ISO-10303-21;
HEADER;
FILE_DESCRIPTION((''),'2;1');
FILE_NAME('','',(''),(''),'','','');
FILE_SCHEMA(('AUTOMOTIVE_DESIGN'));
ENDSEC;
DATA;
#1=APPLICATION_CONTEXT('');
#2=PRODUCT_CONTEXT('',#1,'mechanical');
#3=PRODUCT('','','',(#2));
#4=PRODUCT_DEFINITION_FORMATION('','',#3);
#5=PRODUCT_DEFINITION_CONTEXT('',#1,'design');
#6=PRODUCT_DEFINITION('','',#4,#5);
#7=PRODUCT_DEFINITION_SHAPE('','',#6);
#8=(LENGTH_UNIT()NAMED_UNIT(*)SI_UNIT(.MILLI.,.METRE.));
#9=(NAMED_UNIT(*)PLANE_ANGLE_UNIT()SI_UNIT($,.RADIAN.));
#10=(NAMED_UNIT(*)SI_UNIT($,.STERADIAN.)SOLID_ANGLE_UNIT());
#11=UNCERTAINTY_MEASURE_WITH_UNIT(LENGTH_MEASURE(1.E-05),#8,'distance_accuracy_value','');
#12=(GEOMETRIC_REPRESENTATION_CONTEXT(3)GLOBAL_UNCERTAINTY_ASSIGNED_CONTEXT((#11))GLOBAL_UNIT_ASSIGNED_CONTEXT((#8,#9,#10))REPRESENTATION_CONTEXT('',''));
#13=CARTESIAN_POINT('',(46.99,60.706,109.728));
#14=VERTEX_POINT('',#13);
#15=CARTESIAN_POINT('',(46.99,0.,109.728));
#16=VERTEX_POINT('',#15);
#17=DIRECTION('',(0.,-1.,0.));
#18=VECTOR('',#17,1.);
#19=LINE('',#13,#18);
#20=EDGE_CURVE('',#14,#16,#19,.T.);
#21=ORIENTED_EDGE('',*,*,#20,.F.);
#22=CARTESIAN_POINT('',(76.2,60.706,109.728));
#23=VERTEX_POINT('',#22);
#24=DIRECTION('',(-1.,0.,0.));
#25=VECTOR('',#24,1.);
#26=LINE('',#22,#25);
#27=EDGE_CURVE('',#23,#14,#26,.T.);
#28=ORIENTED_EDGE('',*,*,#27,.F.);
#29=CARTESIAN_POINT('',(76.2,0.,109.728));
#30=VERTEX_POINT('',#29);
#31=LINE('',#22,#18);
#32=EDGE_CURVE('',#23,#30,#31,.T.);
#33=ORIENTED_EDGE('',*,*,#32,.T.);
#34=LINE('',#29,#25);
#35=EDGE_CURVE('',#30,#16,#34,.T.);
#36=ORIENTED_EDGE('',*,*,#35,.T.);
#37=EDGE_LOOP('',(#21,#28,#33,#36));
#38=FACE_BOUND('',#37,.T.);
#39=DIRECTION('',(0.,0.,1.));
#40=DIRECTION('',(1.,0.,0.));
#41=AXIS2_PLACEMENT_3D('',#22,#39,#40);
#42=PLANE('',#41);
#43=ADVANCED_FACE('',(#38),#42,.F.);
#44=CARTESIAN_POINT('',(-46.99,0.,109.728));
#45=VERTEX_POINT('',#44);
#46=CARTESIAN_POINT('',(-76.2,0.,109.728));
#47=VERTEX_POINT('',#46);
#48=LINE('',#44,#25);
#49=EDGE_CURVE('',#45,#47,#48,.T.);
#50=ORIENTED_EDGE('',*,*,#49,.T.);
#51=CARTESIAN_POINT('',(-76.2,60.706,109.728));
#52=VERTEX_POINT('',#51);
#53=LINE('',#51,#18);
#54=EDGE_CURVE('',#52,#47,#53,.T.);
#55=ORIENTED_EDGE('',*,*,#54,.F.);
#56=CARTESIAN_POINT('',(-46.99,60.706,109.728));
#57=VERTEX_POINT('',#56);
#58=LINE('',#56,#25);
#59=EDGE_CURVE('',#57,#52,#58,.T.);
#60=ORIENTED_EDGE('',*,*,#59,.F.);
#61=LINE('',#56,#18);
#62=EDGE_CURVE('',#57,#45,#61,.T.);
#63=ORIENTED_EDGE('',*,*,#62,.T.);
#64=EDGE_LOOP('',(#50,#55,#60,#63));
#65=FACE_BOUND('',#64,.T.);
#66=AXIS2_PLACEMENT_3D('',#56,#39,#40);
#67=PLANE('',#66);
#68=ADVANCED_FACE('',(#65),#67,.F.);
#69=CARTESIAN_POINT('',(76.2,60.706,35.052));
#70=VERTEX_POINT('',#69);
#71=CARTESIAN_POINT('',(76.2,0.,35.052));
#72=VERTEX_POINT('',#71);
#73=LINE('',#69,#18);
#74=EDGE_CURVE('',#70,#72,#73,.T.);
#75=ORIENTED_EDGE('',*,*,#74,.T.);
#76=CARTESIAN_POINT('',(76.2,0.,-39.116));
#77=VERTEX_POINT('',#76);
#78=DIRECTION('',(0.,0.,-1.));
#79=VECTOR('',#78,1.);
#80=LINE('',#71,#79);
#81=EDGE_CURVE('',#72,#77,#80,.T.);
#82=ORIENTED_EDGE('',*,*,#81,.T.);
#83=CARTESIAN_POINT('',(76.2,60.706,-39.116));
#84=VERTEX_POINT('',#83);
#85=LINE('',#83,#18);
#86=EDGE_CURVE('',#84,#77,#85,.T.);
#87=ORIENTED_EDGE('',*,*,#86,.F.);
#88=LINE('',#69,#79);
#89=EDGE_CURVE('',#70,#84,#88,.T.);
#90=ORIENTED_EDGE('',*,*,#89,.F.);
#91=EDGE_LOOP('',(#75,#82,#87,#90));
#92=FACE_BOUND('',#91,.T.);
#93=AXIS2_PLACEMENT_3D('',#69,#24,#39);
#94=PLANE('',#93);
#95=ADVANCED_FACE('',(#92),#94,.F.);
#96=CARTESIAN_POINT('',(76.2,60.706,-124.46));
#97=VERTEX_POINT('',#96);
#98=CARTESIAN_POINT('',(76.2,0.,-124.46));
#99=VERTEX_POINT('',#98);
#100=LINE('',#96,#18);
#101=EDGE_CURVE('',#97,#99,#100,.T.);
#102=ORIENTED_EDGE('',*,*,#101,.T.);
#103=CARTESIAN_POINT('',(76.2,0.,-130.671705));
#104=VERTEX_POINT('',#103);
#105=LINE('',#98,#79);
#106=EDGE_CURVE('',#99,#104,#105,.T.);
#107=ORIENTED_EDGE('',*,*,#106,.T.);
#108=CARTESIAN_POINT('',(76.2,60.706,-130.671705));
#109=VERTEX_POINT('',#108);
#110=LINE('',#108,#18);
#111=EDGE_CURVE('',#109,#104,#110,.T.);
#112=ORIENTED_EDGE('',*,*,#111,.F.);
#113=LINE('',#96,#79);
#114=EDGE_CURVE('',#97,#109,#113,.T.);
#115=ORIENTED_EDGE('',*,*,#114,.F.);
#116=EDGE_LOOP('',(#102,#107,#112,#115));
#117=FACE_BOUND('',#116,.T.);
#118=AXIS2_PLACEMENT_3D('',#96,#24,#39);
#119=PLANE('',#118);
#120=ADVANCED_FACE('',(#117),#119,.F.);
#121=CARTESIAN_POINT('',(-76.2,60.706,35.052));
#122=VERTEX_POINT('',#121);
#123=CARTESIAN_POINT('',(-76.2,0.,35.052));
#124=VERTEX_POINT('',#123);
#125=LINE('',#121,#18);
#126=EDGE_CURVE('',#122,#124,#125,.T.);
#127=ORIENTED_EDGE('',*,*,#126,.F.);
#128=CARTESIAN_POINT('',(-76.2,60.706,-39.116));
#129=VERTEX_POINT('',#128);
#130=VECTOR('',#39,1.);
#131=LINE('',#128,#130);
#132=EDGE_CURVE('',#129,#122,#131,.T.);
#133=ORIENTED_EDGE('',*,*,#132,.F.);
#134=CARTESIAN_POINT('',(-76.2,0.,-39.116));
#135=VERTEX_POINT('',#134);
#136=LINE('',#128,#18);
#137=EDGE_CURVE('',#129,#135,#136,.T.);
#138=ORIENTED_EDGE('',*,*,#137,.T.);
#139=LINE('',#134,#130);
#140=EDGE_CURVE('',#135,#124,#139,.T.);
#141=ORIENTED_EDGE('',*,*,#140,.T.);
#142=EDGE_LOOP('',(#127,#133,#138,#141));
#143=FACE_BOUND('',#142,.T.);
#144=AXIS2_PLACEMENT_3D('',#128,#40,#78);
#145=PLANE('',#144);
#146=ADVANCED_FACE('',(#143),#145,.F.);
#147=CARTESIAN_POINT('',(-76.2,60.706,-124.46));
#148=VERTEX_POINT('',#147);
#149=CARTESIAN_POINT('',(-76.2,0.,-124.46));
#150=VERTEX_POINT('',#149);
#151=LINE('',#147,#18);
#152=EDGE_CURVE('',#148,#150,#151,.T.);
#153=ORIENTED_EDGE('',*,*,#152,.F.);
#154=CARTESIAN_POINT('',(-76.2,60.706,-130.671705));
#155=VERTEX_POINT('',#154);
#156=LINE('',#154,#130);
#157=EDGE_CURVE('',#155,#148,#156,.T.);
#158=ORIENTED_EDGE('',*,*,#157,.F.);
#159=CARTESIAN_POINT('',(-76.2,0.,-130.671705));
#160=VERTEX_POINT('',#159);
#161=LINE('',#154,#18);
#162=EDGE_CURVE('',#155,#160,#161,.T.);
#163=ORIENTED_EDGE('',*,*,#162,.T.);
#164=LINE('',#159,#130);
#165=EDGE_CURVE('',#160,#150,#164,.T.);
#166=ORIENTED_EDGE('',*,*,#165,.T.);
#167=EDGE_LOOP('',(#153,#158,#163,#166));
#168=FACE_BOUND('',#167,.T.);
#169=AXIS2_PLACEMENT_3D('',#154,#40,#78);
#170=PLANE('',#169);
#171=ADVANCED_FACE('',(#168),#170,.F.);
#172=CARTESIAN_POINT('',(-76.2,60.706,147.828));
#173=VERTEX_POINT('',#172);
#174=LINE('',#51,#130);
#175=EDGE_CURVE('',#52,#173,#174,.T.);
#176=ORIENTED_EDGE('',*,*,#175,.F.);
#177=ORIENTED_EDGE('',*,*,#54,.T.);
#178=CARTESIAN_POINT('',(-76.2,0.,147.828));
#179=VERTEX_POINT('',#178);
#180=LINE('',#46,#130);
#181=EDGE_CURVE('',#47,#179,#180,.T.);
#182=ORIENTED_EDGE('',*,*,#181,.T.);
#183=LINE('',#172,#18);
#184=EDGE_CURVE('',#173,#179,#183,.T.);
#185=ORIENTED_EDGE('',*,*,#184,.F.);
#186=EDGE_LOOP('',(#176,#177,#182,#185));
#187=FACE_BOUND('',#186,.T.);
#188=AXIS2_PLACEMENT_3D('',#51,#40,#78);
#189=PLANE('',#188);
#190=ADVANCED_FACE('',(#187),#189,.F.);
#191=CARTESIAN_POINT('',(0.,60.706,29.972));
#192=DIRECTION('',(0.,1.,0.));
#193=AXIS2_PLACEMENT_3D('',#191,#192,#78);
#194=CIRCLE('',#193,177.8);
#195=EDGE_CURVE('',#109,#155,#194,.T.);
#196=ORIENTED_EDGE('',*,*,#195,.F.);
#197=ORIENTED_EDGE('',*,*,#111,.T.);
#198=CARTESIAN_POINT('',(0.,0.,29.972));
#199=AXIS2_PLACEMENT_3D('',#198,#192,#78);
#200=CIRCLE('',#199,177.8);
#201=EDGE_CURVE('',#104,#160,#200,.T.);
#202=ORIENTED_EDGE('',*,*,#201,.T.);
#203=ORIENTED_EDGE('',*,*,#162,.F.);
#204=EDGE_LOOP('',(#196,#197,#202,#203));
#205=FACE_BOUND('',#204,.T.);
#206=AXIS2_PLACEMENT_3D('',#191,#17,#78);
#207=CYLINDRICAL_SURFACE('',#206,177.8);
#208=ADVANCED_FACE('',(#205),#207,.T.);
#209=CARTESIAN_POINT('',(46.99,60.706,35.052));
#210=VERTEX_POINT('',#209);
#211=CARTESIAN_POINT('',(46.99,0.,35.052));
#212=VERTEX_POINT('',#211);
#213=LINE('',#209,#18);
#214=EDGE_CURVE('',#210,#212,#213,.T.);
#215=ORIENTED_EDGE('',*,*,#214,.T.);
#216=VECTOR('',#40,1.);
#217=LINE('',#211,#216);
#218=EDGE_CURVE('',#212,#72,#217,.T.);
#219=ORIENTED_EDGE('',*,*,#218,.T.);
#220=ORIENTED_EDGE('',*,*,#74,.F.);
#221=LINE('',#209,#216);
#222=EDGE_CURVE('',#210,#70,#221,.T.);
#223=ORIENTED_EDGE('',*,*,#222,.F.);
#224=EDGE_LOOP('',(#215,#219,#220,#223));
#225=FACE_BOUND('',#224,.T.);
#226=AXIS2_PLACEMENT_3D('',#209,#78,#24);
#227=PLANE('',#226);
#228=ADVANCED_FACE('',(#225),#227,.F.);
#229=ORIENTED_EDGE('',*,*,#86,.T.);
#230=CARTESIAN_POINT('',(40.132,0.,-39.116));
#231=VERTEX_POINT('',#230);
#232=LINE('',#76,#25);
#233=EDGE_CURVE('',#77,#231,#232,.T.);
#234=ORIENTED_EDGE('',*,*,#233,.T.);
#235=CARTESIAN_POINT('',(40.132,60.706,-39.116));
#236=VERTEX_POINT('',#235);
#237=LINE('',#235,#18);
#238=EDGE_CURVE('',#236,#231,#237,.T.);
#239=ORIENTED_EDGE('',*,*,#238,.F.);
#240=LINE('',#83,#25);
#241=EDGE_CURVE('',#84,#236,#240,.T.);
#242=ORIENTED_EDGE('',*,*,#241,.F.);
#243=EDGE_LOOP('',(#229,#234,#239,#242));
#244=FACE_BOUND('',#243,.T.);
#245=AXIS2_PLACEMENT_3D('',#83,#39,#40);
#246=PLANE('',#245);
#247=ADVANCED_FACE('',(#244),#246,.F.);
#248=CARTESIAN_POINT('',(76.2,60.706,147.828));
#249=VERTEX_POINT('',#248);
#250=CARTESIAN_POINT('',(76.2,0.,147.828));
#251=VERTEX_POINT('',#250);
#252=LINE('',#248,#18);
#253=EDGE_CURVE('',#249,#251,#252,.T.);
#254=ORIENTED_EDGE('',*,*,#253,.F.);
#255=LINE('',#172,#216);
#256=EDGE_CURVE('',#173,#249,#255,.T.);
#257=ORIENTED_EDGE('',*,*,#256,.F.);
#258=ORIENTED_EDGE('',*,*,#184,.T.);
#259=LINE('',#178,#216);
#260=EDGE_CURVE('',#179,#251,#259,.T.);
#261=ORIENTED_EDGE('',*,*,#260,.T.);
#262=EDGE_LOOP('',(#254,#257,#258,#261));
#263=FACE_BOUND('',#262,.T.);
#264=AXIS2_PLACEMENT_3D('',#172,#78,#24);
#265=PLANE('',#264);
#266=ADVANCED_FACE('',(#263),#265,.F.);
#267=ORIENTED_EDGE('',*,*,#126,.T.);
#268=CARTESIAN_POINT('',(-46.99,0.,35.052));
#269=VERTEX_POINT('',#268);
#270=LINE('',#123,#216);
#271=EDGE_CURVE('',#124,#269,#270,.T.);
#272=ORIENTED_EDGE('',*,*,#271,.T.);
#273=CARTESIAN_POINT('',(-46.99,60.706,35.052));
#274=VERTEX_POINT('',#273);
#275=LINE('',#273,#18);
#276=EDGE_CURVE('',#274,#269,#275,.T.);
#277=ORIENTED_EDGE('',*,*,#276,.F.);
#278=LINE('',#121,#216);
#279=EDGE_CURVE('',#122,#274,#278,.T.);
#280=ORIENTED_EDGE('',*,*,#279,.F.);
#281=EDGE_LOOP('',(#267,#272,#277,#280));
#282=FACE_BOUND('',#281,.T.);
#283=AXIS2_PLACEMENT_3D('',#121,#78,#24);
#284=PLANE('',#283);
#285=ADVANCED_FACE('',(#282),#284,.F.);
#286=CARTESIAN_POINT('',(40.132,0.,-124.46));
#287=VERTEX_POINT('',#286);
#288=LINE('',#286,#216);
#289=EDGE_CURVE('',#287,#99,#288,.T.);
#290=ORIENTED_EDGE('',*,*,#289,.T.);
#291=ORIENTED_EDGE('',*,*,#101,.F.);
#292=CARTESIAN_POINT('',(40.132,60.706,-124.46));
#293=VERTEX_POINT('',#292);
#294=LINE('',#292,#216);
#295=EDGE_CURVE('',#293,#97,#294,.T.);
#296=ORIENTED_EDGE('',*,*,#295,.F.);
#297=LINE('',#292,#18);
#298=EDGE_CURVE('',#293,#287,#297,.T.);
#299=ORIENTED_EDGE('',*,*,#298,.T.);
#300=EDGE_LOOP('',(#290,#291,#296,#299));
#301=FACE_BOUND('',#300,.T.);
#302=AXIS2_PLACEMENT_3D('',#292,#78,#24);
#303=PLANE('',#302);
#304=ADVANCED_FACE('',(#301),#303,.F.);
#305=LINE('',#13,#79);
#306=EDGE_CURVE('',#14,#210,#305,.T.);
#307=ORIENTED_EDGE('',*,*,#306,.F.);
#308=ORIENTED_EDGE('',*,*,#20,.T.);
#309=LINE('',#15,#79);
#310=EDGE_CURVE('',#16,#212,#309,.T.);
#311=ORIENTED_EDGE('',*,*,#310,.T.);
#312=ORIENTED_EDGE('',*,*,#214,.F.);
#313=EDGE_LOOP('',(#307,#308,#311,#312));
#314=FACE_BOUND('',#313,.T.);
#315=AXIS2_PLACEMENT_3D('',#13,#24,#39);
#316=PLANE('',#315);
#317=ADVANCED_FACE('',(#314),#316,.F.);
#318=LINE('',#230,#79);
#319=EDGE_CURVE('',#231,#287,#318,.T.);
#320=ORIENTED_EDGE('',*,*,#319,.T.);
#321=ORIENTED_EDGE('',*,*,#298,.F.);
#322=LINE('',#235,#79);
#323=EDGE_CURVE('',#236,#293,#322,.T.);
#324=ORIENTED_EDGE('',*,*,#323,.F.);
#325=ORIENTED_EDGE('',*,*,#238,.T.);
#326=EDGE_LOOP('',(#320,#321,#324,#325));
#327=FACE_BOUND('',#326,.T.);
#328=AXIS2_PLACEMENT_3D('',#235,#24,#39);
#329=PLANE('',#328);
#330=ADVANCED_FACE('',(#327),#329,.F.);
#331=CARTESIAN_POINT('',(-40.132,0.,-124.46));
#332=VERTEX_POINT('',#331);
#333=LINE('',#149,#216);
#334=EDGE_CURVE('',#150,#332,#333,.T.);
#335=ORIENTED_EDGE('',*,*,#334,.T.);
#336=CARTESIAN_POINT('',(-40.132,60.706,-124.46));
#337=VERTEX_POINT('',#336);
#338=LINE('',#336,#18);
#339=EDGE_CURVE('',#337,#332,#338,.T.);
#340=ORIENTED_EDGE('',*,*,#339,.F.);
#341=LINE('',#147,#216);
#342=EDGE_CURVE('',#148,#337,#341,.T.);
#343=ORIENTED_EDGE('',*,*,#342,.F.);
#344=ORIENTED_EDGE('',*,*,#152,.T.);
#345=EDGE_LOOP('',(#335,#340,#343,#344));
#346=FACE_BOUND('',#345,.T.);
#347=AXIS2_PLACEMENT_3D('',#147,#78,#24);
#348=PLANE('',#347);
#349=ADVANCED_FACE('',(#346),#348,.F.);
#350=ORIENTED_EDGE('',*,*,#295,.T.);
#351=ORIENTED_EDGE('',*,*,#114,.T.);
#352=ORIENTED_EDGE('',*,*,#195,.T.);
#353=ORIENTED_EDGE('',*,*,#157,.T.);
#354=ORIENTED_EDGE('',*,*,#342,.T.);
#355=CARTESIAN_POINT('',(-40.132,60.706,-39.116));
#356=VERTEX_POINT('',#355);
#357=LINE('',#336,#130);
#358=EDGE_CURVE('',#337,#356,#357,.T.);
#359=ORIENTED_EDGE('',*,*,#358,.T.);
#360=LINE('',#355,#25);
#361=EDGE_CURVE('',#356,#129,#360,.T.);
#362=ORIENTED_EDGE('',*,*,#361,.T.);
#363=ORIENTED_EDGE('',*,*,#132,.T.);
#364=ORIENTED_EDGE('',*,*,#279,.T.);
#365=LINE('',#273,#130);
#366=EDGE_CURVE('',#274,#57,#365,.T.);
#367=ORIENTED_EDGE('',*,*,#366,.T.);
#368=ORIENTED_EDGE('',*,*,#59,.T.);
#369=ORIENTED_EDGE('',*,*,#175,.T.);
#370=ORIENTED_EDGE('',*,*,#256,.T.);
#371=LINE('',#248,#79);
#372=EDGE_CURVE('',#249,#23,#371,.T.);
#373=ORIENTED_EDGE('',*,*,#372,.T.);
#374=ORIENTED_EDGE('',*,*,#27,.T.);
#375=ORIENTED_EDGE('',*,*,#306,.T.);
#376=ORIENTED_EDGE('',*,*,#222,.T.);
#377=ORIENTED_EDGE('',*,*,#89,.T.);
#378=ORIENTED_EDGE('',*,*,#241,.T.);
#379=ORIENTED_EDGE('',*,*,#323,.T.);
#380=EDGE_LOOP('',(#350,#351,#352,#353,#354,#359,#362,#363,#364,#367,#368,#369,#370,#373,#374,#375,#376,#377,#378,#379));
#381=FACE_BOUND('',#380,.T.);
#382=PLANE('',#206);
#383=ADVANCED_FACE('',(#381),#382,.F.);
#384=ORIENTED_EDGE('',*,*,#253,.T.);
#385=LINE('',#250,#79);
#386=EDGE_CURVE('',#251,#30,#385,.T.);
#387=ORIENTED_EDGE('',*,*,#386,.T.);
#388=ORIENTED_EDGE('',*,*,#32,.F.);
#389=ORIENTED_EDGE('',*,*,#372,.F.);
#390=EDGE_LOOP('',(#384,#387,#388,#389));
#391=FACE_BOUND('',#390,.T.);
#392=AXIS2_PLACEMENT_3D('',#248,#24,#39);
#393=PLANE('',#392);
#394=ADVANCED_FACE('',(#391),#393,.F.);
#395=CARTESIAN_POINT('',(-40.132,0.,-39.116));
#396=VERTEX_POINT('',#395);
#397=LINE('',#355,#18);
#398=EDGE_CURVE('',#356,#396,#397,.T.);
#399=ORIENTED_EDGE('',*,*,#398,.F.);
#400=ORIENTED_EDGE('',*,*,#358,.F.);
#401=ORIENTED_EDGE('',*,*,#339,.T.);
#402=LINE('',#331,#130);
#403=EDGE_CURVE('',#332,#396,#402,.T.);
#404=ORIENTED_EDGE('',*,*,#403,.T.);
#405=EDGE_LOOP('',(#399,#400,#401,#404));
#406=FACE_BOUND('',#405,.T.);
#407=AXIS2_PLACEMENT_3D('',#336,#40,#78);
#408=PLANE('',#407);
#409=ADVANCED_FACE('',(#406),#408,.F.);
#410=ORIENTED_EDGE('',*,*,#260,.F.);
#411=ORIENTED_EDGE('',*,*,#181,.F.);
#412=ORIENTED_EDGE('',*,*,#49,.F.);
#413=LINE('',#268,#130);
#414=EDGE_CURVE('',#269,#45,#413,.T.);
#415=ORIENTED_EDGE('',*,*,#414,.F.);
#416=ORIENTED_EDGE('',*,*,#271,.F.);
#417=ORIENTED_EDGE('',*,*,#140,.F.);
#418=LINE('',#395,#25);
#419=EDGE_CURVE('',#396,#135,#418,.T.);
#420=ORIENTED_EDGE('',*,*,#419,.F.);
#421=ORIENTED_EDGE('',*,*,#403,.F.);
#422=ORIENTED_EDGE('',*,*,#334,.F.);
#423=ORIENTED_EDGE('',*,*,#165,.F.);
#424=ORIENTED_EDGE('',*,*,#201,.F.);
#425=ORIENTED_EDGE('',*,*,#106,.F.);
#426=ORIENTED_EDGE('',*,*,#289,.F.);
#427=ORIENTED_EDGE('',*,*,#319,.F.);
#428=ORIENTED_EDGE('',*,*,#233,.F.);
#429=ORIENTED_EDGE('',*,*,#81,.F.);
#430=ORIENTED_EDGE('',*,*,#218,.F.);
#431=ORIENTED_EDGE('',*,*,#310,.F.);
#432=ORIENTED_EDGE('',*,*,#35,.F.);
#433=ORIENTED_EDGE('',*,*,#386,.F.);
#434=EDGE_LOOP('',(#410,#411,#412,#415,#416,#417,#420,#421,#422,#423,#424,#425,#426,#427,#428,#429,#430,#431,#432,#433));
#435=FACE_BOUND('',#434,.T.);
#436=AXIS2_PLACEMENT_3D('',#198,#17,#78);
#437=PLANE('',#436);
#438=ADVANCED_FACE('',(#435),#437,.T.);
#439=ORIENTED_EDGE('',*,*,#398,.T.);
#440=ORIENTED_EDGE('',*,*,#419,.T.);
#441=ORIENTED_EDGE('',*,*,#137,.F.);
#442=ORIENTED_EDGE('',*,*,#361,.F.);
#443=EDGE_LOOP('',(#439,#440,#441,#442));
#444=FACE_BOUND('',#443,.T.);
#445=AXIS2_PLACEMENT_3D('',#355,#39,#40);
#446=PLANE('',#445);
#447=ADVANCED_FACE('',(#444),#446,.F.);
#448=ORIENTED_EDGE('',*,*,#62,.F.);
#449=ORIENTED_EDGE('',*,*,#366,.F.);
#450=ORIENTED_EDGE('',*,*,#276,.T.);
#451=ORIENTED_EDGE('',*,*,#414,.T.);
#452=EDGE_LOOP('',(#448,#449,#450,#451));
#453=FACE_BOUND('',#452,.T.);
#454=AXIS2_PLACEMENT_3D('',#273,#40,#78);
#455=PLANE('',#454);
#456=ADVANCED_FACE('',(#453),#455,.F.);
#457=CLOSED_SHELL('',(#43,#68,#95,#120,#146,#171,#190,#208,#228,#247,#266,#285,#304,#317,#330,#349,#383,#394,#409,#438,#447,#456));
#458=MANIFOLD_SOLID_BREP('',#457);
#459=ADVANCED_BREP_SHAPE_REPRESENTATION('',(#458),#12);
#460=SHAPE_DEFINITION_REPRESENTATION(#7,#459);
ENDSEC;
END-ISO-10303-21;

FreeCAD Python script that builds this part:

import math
import FreeCAD as App
import Part
import Sketcher
Q = App.Units.Quantity

doc = App.newDocument("Part")
body = doc.addObject("PartDesign::Body", "Body")

sketch1 = doc.addObject("Sketcher::SketchObject", "Sketch")
body.addObject(sketch1)
sketch1.AttachmentSupport = (doc.XZ_Plane, [""])
sketch1.MapMode = "FlatFace"
sketch1.addGeometry([
    Part.LineSegment(App.Vector(-76.2, 147.828, 0), App.Vector(76.2, 147.828, 0)),
    Part.LineSegment(App.Vector(76.2, 147.828, 0), App.Vector(76.2, 109.728, 0)),
    Part.LineSegment(App.Vector(76.2, 109.728, 0), App.Vector(46.99, 109.728, 0)),
    Part.LineSegment(App.Vector(46.99, 109.728, 0), App.Vector(46.99, 35.052, 0)),
    Part.LineSegment(App.Vector(46.99, 35.052, 0), App.Vector(76.2, 35.052, 0)),
    Part.LineSegment(App.Vector(76.2, 35.052, 0), App.Vector(76.2, -39.116, 0)),
    Part.LineSegment(App.Vector(76.2, -39.116, 0), App.Vector(40.132, -39.116, 0)),
    Part.LineSegment(App.Vector(40.132, -39.116, 0), App.Vector(40.132, -124.46, 0)),
    Part.LineSegment(App.Vector(40.132, -124.46, 0), App.Vector(76.2, -124.46, 0)),
    Part.LineSegment(App.Vector(76.2, -124.46, 0), App.Vector(76.2, -130.671705, 0)),
    Part.ArcOfCircle(Part.Circle(App.Vector(0, 29.972, 0), App.Vector(0, 0, 1), 177.8), math.radians(-115.376934), math.radians(-64.623066)),
    Part.LineSegment(App.Vector(-76.2, -130.671705, 0), App.Vector(-76.2, -124.46, 0)),
    Part.LineSegment(App.Vector(-76.2, -124.46, 0), App.Vector(-40.132, -124.46, 0)),
    Part.LineSegment(App.Vector(-40.132, -124.46, 0), App.Vector(-40.132, -39.116, 0)),
    Part.LineSegment(App.Vector(-40.132, -39.116, 0), App.Vector(-76.2, -39.116, 0)),
    Part.LineSegment(App.Vector(-76.2, -39.116, 0), App.Vector(-76.2, 35.052, 0)),
    Part.LineSegment(App.Vector(-76.2, 35.052, 0), App.Vector(-46.99, 35.052, 0)),
    Part.LineSegment(App.Vector(-46.99, 35.052, 0), App.Vector(-46.99, 109.728, 0)),
    Part.LineSegment(App.Vector(-46.99, 109.728, 0), App.Vector(-76.2, 109.728, 0)),
    Part.LineSegment(App.Vector(-76.2, 109.728, 0), App.Vector(-76.2, 147.828, 0)),
], False)
sketch1.addConstraint([
    Sketcher.Constraint("Coincident", 0, 2, 1, 1),
    Sketcher.Constraint("Coincident", 1, 2, 2, 1),
    Sketcher.Constraint("Coincident", 2, 2, 3, 1),
    Sketcher.Constraint("Coincident", 3, 2, 4, 1),
    Sketcher.Constraint("Coincident", 4, 2, 5, 1),
    Sketcher.Constraint("Coincident", 5, 2, 6, 1),
    Sketcher.Constraint("Coincident", 6, 2, 7, 1),
    Sketcher.Constraint("Coincident", 7, 2, 8, 1),
    Sketcher.Constraint("Coincident", 8, 2, 9, 1),
    Sketcher.Constraint("Coincident", 9, 2, 10, 2),
    Sketcher.Constraint("Coincident", 10, 1, 11, 1),
    Sketcher.Constraint("Coincident", 11, 2, 12, 1),
    Sketcher.Constraint("Coincident", 12, 2, 13, 1),
    Sketcher.Constraint("Coincident", 13, 2, 14, 1),
    Sketcher.Constraint("Coincident", 14, 2, 15, 1),
    Sketcher.Constraint("Coincident", 15, 2, 16, 1),
    Sketcher.Constraint("Coincident", 16, 2, 17, 1),
    Sketcher.Constraint("Coincident", 17, 2, 18, 1),
    Sketcher.Constraint("Coincident", 18, 2, 19, 1),
    Sketcher.Constraint("Coincident", 19, 2, 0, 1),
    Sketcher.Constraint("Horizontal", 0),
    Sketcher.Constraint("Vertical", 1),
    Sketcher.Constraint("Horizontal", 2),
    Sketcher.Constraint("Vertical", 3),
    Sketcher.Constraint("Horizontal", 4),
    Sketcher.Constraint("Vertical", 5),
    Sketcher.Constraint("Horizontal", 6),
    Sketcher.Constraint("Vertical", 7),
    Sketcher.Constraint("Horizontal", 8),
    Sketcher.Constraint("Vertical", 9),
    Sketcher.Constraint("Vertical", 11),
    Sketcher.Constraint("Horizontal", 12),
    Sketcher.Constraint("Vertical", 13),
    Sketcher.Constraint("Horizontal", 14),
    Sketcher.Constraint("Vertical", 15),
    Sketcher.Constraint("Horizontal", 16),
    Sketcher.Constraint("Vertical", 17),
    Sketcher.Constraint("Horizontal", 18),
    Sketcher.Constraint("Vertical", 19),
    Sketcher.Constraint("Symmetric", 9, 2, 10, 1, -2),
    Sketcher.Constraint("Symmetric", 7, 2, 12, 2, -2),
    Sketcher.Constraint("Symmetric", 5, 2, 14, 2, -2),
    Sketcher.Constraint("Symmetric", 3, 2, 16, 2, -2),
    Sketcher.Constraint("Symmetric", 1, 2, 18, 2, -2),
    Sketcher.Constraint("Vertical", 1, 2, 4, 2),
    Sketcher.Constraint("Vertical", 5, 2, 8, 2),
    Sketcher.Constraint("Radius", 10, Q("7 in")),
    Sketcher.Constraint("DistanceX", 0, 1, 0, 2, Q("6 in")),
    Sketcher.Constraint("DistanceY", 1, 2, 1, 1, Q("1.5 in")),
    Sketcher.Constraint("DistanceX", 2, 2, 2, 1, Q("1.15 in")),
    Sketcher.Constraint("DistanceX", 6, 2, 6, 1, Q("1.42 in")),
    Sketcher.Constraint("DistanceY", 3, 2, 3, 1, Q("2.94 in")),
    Sketcher.Constraint("DistanceY", 5, 2, 5, 1, Q("2.92 in")),
    Sketcher.Constraint("DistanceY", 7, 2, 7, 1, Q("3.36 in")),
    Sketcher.Constraint("DistanceY", 7, 2, -1, 1, Q("4.9 in")),
    Sketcher.Constraint("DistanceY", 10, 3, 3, 2, Q("0.2 in")),
])
pad1 = doc.addObject("PartDesign::Pad", "Pad")
body.addObject(pad1)
pad1.Profile = sketch1
pad1.Length = Q("2.39 in")
pad1.Reversed = True

doc.recompute()
